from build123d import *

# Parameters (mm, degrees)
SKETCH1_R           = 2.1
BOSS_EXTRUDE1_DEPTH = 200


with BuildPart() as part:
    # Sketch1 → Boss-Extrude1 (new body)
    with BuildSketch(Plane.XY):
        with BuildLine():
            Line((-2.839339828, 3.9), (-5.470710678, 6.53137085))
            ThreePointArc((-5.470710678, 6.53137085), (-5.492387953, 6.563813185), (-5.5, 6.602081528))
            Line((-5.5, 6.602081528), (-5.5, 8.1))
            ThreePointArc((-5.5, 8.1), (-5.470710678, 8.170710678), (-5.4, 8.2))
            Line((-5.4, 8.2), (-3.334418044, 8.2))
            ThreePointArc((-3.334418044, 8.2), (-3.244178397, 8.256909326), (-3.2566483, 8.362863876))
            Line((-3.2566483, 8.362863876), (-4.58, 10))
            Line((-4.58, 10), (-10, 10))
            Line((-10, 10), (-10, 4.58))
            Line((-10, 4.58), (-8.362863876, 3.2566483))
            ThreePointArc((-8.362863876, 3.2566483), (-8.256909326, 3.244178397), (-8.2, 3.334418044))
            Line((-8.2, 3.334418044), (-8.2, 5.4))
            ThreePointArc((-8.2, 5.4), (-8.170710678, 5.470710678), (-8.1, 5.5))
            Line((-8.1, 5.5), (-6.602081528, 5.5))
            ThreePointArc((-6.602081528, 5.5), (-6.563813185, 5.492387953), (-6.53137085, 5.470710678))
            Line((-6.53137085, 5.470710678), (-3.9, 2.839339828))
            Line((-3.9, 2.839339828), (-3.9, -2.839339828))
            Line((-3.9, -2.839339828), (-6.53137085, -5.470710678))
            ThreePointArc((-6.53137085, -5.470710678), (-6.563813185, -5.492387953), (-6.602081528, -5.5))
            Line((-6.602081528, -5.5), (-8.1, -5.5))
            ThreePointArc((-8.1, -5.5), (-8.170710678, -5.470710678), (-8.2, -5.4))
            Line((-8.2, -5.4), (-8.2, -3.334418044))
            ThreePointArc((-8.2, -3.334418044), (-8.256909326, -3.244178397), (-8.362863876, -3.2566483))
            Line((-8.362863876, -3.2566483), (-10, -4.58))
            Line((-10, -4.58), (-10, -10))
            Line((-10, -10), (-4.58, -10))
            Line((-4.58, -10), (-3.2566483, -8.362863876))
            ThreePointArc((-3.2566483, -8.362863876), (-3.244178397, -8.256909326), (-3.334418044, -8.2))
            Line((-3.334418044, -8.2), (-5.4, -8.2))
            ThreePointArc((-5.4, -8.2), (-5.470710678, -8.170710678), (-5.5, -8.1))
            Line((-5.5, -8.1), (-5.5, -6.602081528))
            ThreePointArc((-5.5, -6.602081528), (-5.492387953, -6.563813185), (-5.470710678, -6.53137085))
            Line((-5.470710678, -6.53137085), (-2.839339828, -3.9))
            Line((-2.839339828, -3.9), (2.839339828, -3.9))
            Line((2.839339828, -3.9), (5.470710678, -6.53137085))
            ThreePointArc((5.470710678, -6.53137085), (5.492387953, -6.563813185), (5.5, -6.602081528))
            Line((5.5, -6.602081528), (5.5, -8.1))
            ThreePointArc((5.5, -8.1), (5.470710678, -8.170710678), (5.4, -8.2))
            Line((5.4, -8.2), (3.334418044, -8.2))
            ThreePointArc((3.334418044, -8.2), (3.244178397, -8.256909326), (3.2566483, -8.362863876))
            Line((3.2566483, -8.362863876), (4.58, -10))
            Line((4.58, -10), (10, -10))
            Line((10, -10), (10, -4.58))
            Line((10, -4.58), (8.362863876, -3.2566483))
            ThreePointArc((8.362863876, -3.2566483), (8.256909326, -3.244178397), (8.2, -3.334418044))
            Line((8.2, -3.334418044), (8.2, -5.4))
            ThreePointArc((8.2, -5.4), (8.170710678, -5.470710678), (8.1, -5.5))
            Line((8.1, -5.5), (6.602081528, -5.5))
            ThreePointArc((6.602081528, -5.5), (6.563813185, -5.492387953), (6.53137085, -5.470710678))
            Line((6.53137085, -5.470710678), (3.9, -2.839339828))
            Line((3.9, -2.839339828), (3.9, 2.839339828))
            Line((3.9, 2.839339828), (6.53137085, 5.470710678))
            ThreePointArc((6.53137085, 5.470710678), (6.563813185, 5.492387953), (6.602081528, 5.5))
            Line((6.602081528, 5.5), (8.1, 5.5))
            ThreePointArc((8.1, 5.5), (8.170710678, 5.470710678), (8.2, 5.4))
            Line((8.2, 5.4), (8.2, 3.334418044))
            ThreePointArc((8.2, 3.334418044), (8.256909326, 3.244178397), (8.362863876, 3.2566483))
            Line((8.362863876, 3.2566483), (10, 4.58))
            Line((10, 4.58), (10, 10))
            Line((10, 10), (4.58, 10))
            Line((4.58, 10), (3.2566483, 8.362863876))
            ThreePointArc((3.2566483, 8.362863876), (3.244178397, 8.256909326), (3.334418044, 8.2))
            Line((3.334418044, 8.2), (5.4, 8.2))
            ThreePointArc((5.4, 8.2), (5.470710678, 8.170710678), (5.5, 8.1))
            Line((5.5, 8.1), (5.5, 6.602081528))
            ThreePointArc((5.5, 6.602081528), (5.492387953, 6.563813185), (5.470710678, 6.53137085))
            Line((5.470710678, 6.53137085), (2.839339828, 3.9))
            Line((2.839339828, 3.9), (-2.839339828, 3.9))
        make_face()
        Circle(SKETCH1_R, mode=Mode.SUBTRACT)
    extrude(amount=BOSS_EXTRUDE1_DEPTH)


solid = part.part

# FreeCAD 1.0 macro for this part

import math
import FreeCAD as App
import Part
import Sketcher
from FreeCAD import Vector

doc = App.newDocument("Part")
body = doc.addObject("PartDesign::Body", "Body")

sketch1 = doc.addObject("Sketcher::SketchObject", "Sketch")
body.addObject(sketch1)
sketch1.AttachmentSupport = (doc.XY_Plane, [""])
sketch1.MapMode = "FlatFace"
sketch1.addGeometry(Part.LineSegment(Vector(-2.83934, 3.9, 0), Vector(-5.470711, 6.531371, 0)), False)
sketch1.addGeometry(Part.ArcOfCircle(Part.Circle(Vector(-5.4, 6.602082, 0), Vector(0, 0, 1), 0.1), math.radians(-179.999999), math.radians(-135.000001)), False)
sketch1.addGeometry(Part.LineSegment(Vector(-5.5, 6.602082, 0), Vector(-5.5, 8.1, 0)), False)
sketch1.addGeometry(Part.ArcOfCircle(Part.Circle(Vector(-5.4, 8.1, 0), Vector(0, 0, 1), 0.1), math.radians(90), math.radians(180)), False)
sketch1.addGeometry(Part.LineSegment(Vector(-5.4, 8.2, 0), Vector(-3.334418, 8.2, 0)), False)
sketch1.addGeometry(Part.ArcOfCircle(Part.Circle(Vector(-3.334418, 8.3, 0), Vector(0, 0, 1), 0.1), math.radians(-90.000001), math.radians(38.949764)), False)
sketch1.addGeometry(Part.LineSegment(Vector(-3.256648, 8.362864, 0), Vector(-4.58, 10, 0)), False)
sketch1.addGeometry(Part.LineSegment(Vector(-4.58, 10, 0), Vector(-10, 10, 0)), False)
sketch1.addGeometry(Part.LineSegment(Vector(-10, 10, 0), Vector(-10, 4.58, 0)), False)
sketch1.addGeometry(Part.LineSegment(Vector(-10, 4.58, 0), Vector(-8.362864, 3.256648, 0)), False)
sketch1.addGeometry(Part.ArcOfCircle(Part.Circle(Vector(-8.3, 3.334418, 0), Vector(0, 0, 1), 0.1), math.radians(-128.949764), math.radians(0.000001)), False)
sketch1.addGeometry(Part.LineSegment(Vector(-8.2, 3.334418, 0), Vector(-8.2, 5.4, 0)), False)
sketch1.addGeometry(Part.ArcOfCircle(Part.Circle(Vector(-8.1, 5.4, 0), Vector(0, 0, 1), 0.1), math.radians(90), math.radians(180)), False)
sketch1.addGeometry(Part.LineSegment(Vector(-8.1, 5.5, 0), Vector(-6.602082, 5.5, 0)), False)
sketch1.addGeometry(Part.ArcOfCircle(Part.Circle(Vector(-6.602082, 5.4, 0), Vector(0, 0, 1), 0.1), math.radians(45.000001), math.radians(89.999999)), False)
sketch1.addGeometry(Part.LineSegment(Vector(-6.531371, 5.470711, 0), Vector(-3.9, 2.83934, 0)), False)
sketch1.addGeometry(Part.LineSegment(Vector(-3.9, 2.83934, 0), Vector(-3.9, -2.83934, 0)), False)
sketch1.addGeometry(Part.LineSegment(Vector(-3.9, -2.83934, 0), Vector(-6.531371, -5.470711, 0)), False)
sketch1.addGeometry(Part.ArcOfCircle(Part.Circle(Vector(-6.602082, -5.4, 0), Vector(0, 0, 1), 0.1), math.radians(-89.999999), math.radians(-45.000001)), False)
sketch1.addGeometry(Part.LineSegment(Vector(-6.602082, -5.5, 0), Vector(-8.1, -5.5, 0)), False)
sketch1.addGeometry(Part.ArcOfCircle(Part.Circle(Vector(-8.1, -5.4, 0), Vector(0, 0, 1), 0.1), math.radians(180), math.radians(270)), False)
sketch1.addGeometry(Part.LineSegment(Vector(-8.2, -5.4, 0), Vector(-8.2, -3.334418, 0)), False)
sketch1.addGeometry(Part.ArcOfCircle(Part.Circle(Vector(-8.3, -3.334418, 0), Vector(0, 0, 1), 0.1), math.radians(-0.000001), math.radians(128.949764)), False)
sketch1.addGeometry(Part.LineSegment(Vector(-8.362864, -3.256648, 0), Vector(-10, -4.58, 0)), False)
sketch1.addGeometry(Part.LineSegment(Vector(-10, -4.58, 0), Vector(-10, -10, 0)), False)
sketch1.addGeometry(Part.LineSegment(Vector(-10, -10, 0), Vector(-4.58, -10, 0)), False)
sketch1.addGeometry(Part.LineSegment(Vector(-4.58, -10, 0), Vector(-3.256648, -8.362864, 0)), False)
sketch1.addGeometry(Part.ArcOfCircle(Part.Circle(Vector(-3.334418, -8.3, 0), Vector(0, 0, 1), 0.1), math.radians(-38.949764), math.radians(90.000001)), False)
sketch1.addGeometry(Part.LineSegment(Vector(-3.334418, -8.2, 0), Vector(-5.4, -8.2, 0)), False)
sketch1.addGeometry(Part.ArcOfCircle(Part.Circle(Vector(-5.4, -8.1, 0), Vector(0, 0, 1), 0.1), math.radians(180), math.radians(270)), False)
sketch1.addGeometry(Part.LineSegment(Vector(-5.5, -8.1, 0), Vector(-5.5, -6.602082, 0)), False)
sketch1.addGeometry(Part.ArcOfCircle(Part.Circle(Vector(-5.4, -6.602082, 0), Vector(0, 0, 1), 0.1), math.radians(135.000001), math.radians(179.999999)), False)
sketch1.addGeometry(Part.LineSegment(Vector(-5.470711, -6.531371, 0), Vector(-2.83934, -3.9, 0)), False)
sketch1.addGeometry(Part.LineSegment(Vector(-2.83934, -3.9, 0), Vector(2.83934, -3.9, 0)), False)
sketch1.addGeometry(Part.LineSegment(Vector(2.83934, -3.9, 0), Vector(5.470711, -6.531371, 0)), False)
sketch1.addGeometry(Part.ArcOfCircle(Part.Circle(Vector(5.4, -6.602082, 0), Vector(0, 0, 1), 0.1), math.radians(0.000001), math.radians(44.999999)), False)
sketch1.addGeometry(Part.LineSegment(Vector(5.5, -6.602082, 0), Vector(5.5, -8.1, 0)), False)
sketch1.addGeometry(Part.ArcOfCircle(Part.Circle(Vector(5.4, -8.1, 0), Vector(0, 0, 1), 0.1), math.radians(-90), math.radians(0)), False)
sketch1.addGeometry(Part.LineSegment(Vector(5.4, -8.2, 0), Vector(3.334418, -8.2, 0)), False)
sketch1.addGeometry(Part.ArcOfCircle(Part.Circle(Vector(3.334418, -8.3, 0), Vector(0, 0, 1), 0.1), math.radians(89.999999), math.radians(218.949764)), False)
sketch1.addGeometry(Part.LineSegment(Vector(3.256648, -8.362864, 0), Vector(4.58, -10, 0)), False)
sketch1.addGeometry(Part.LineSegment(Vector(4.58, -10, 0), Vector(10, -10, 0)), False)
sketch1.addGeometry(Part.LineSegment(Vector(10, -10, 0), Vector(10, -4.58, 0)), False)
sketch1.addGeometry(Part.LineSegment(Vector(10, -4.58, 0), Vector(8.362864, -3.256648, 0)), False)
sketch1.addGeometry(Part.ArcOfCircle(Part.Circle(Vector(8.3, -3.334418, 0), Vector(0, 0, 1), 0.1), math.radians(51.050236), math.radians(180.000001)), False)
sketch1.addGeometry(Part.LineSegment(Vector(8.2, -3.334418, 0), Vector(8.2, -5.4, 0)), False)
sketch1.addGeometry(Part.ArcOfCircle(Part.Circle(Vector(8.1, -5.4, 0), Vector(0, 0, 1), 0.1), math.radians(-90), math.radians(0)), False)
sketch1.addGeometry(Part.LineSegment(Vector(8.1, -5.5, 0), Vector(6.602082, -5.5, 0)), False)
sketch1.addGeometry(Part.ArcOfCircle(Part.Circle(Vector(6.602082, -5.4, 0), Vector(0, 0, 1), 0.1), math.radians(-134.999999), math.radians(-90.000001)), False)
sketch1.addGeometry(Part.LineSegment(Vector(6.531371, -5.470711, 0), Vector(3.9, -2.83934, 0)), False)
sketch1.addGeometry(Part.LineSegment(Vector(3.9, -2.83934, 0), Vector(3.9, 2.83934, 0)), False)
sketch1.addGeometry(Part.LineSegment(Vector(3.9, 2.83934, 0), Vector(6.531371, 5.470711, 0)), False)
sketch1.addGeometry(Part.ArcOfCircle(Part.Circle(Vector(6.602082, 5.4, 0), Vector(0, 0, 1), 0.1), math.radians(90.000001), math.radians(134.999999)), False)
sketch1.addGeometry(Part.LineSegment(Vector(6.602082, 5.5, 0), Vector(8.1, 5.5, 0)), False)
sketch1.addGeometry(Part.ArcOfCircle(Part.Circle(Vector(8.1, 5.4, 0), Vector(0, 0, 1), 0.1), math.radians(0), math.radians(90)), False)
sketch1.addGeometry(Part.LineSegment(Vector(8.2, 5.4, 0), Vector(8.2, 3.334418, 0)), False)
sketch1.addGeometry(Part.ArcOfCircle(Part.Circle(Vector(8.3, 3.334418, 0), Vector(0, 0, 1), 0.1), math.radians(179.999999), math.radians(308.949764)), False)
sketch1.addGeometry(Part.LineSegment(Vector(8.362864, 3.256648, 0), Vector(10, 4.58, 0)), False)
sketch1.addGeometry(Part.LineSegment(Vector(10, 4.58, 0), Vector(10, 10, 0)), False)
sketch1.addGeometry(Part.LineSegment(Vector(10, 10, 0), Vector(4.58, 10, 0)), False)
sketch1.addGeometry(Part.LineSegment(Vector(4.58, 10, 0), Vector(3.256648, 8.362864, 0)), False)
sketch1.addGeometry(Part.ArcOfCircle(Part.Circle(Vector(3.334418, 8.3, 0), Vector(0, 0, 1), 0.1), math.radians(141.050236), math.radians(270.000001)), False)
sketch1.addGeometry(Part.LineSegment(Vector(3.334418, 8.2, 0), Vector(5.4, 8.2, 0)), False)
sketch1.addGeometry(Part.ArcOfCircle(Part.Circle(Vector(5.4, 8.1, 0), Vector(0, 0, 1), 0.1), math.radians(0), math.radians(90)), False)
sketch1.addGeometry(Part.LineSegment(Vector(5.5, 8.1, 0), Vector(5.5, 6.602082, 0)), False)
sketch1.addGeometry(Part.ArcOfCircle(Part.Circle(Vector(5.4, 6.602082, 0), Vector(0, 0, 1), 0.1), math.radians(-44.999999), math.radians(-0.000001)), False)
sketch1.addGeometry(Part.LineSegment(Vector(5.470711, 6.531371, 0), Vector(2.83934, 3.9, 0)), False)
sketch1.addGeometry(Part.LineSegment(Vector(2.83934, 3.9, 0), Vector(-2.83934, 3.9, 0)), False)
sketch1.addGeometry(Part.Circle(Vector(0, 0, 0), Vector(0, 0, 1), 2.1), False)
sketch1.addConstraint(Sketcher.Constraint("Tangent", 0, 2, 1, 2))
sketch1.addConstraint(Sketcher.Constraint("Tangent", 1, 1, 2, 1))
sketch1.addConstraint(Sketcher.Constraint("Tangent", 2, 2, 3, 2))
sketch1.addConstraint(Sketcher.Constraint("Tangent", 3, 1, 4, 1))
sketch1.addConstraint(Sketcher.Constraint("Tangent", 4, 2, 5, 1))
sketch1.addConstraint(Sketcher.Constraint("Tangent", 5, 2, 6, 1))
sketch1.addConstraint(Sketcher.Constraint("Coincident", 6, 2, 7, 1))
sketch1.addConstraint(Sketcher.Constraint("Coincident", 7, 2, 8, 1))
sketch1.addConstraint(Sketcher.Constraint("Coincident", 8, 2, 9, 1))
sketch1.addConstraint(Sketcher.Constraint("Tangent", 9, 2, 10, 1))
sketch1.addConstraint(Sketcher.Constraint("Tangent", 10, 2, 11, 1))
sketch1.addConstraint(Sketcher.Constraint("Tangent", 11, 2, 12, 2))
sketch1.addConstraint(Sketcher.Constraint("Tangent", 12, 1, 13, 1))
sketch1.addConstraint(Sketcher.Constraint("Tangent", 13, 2, 14, 2))
sketch1.addConstraint(Sketcher.Constraint("Tangent", 14, 1, 15, 1))
sketch1.addConstraint(Sketcher.Constraint("Coincident", 15, 2, 16, 1))
sketch1.addConstraint(Sketcher.Constraint("Coincident", 16, 2, 17, 1))
sketch1.addConstraint(Sketcher.Constraint("Tangent", 17, 2, 18, 2))
sketch1.addConstraint(Sketcher.Constraint("Tangent", 18, 1, 19, 1))
sketch1.addConstraint(Sketcher.Constraint("Tangent", 19, 2, 20, 2))
sketch1.addConstraint(Sketcher.Constraint("Tangent", 20, 1, 21, 1))
sketch1.addConstraint(Sketcher.Constraint("Tangent", 21, 2, 22, 1))
sketch1.addConstraint(Sketcher.Constraint("Tangent", 22, 2, 23, 1))
sketch1.addConstraint(Sketcher.Constraint("Coincident", 23, 2, 24, 1))
sketch1.addConstraint(Sketcher.Constraint("Coincident", 24, 2, 25, 1))
sketch1.addConstraint(Sketcher.Constraint("Coincident", 25, 2, 26, 1))
sketch1.addConstraint(Sketcher.Constraint("Tangent", 26, 2, 27, 1))
sketch1.addConstraint(Sketcher.Constraint("Tangent", 27, 2, 28, 1))
sketch1.addConstraint(Sketcher.Constraint("Tangent", 28, 2, 29, 2))
sketch1.addConstraint(Sketcher.Constraint("Tangent", 29, 1, 30, 1))
sketch1.addConstraint(Sketcher.Constraint("Tangent", 30, 2, 31, 2))
sketch1.addConstraint(Sketcher.Constraint("Tangent", 31, 1, 32, 1))
sketch1.addConstraint(Sketcher.Constraint("Coincident", 32, 2, 33, 1))
sketch1.addConstraint(Sketcher.Constraint("Coincident", 33, 2, 34, 1))
sketch1.addConstraint(Sketcher.Constraint("Tangent", 34, 2, 35, 2))
sketch1.addConstraint(Sketcher.Constraint("Tangent", 35, 1, 36, 1))
sketch1.addConstraint(Sketcher.Constraint("Tangent", 36, 2, 37, 2))
sketch1.addConstraint(Sketcher.Constraint("Tangent", 37, 1, 38, 1))
sketch1.addConstraint(Sketcher.Constraint("Tangent", 38, 2, 39, 1))
sketch1.addConstraint(Sketcher.Constraint("Tangent", 39, 2, 40, 1))
sketch1.addConstraint(Sketcher.Constraint("Coincident", 40, 2, 41, 1))
sketch1.addConstraint(Sketcher.Constraint("Coincident", 41, 2, 42, 1))
sketch1.addConstraint(Sketcher.Constraint("Coincident", 42, 2, 43, 1))
sketch1.addConstraint(Sketcher.Constraint("Tangent", 43, 2, 44, 1))
sketch1.addConstraint(Sketcher.Constraint("Tangent", 44, 2, 45, 1))
sketch1.addConstraint(Sketcher.Constraint("Tangent", 45, 2, 46, 2))
sketch1.addConstraint(Sketcher.Constraint("Tangent", 46, 1, 47, 1))
sketch1.addConstraint(Sketcher.Constraint("Tangent", 47, 2, 48, 2))
sketch1.addConstraint(Sketcher.Constraint("Tangent", 48, 1, 49, 1))
sketch1.addConstraint(Sketcher.Constraint("Coincident", 49, 2, 50, 1))
sketch1.addConstraint(Sketcher.Constraint("Coincident", 50, 2, 51, 1))
sketch1.addConstraint(Sketcher.Constraint("Tangent", 51, 2, 52, 2))
sketch1.addConstraint(Sketcher.Constraint("Tangent", 52, 1, 53, 1))
sketch1.addConstraint(Sketcher.Constraint("Tangent", 53, 2, 54, 2))
sketch1.addConstraint(Sketcher.Constraint("Tangent", 54, 1, 55, 1))
sketch1.addConstraint(Sketcher.Constraint("Tangent", 55, 2, 56, 1))
sketch1.addConstraint(Sketcher.Constraint("Tangent", 56, 2, 57, 1))
sketch1.addConstraint(Sketcher.Constraint("Coincident", 57, 2, 58, 1))
sketch1.addConstraint(Sketcher.Constraint("Coincident", 58, 2, 59, 1))
sketch1.addConstraint(Sketcher.Constraint("Coincident", 59, 2, 60, 1))
sketch1.addConstraint(Sketcher.Constraint("Tangent", 60, 2, 61, 1))
sketch1.addConstraint(Sketcher.Constraint("Tangent", 61, 2, 62, 1))
sketch1.addConstraint(Sketcher.Constraint("Tangent", 62, 2, 63, 2))
sketch1.addConstraint(Sketcher.Constraint("Tangent", 63, 1, 64, 1))
sketch1.addConstraint(Sketcher.Constraint("Tangent", 64, 2, 65, 2))
sketch1.addConstraint(Sketcher.Constraint("Tangent", 65, 1, 66, 1))
sketch1.addConstraint(Sketcher.Constraint("Coincident", 66, 2, 67, 1))
sketch1.addConstraint(Sketcher.Constraint("Coincident", 67, 2, 0, 1))
sketch1.addConstraint(Sketcher.Constraint("Vertical", 2))
sketch1.addConstraint(Sketcher.Constraint("Horizontal", 4))
sketch1.addConstraint(Sketcher.Constraint("Horizontal", 7))
sketch1.addConstraint(Sketcher.Constraint("Vertical", 8))
sketch1.addConstraint(Sketcher.Constraint("Vertical", 11))
sketch1.addConstraint(Sketcher.Constraint("Horizontal", 13))
sketch1.addConstraint(Sketcher.Constraint("Vertical", 16))
sketch1.addConstraint(Sketcher.Constraint("Horizontal", 19))
sketch1.addConstraint(Sketcher.Constraint("Vertical", 21))
sketch1.addConstraint(Sketcher.Constraint("Vertical", 24))
sketch1.addConstraint(Sketcher.Constraint("Horizontal", 25))
sketch1.addConstraint(Sketcher.Constraint("Horizontal", 28))
sketch1.addConstraint(Sketcher.Constraint("Vertical", 30))
sketch1.addConstraint(Sketcher.Constraint("Horizontal", 33))
sketch1.addConstraint(Sketcher.Constraint("Vertical", 36))
sketch1.addConstraint(Sketcher.Constraint("Horizontal", 38))
sketch1.addConstraint(Sketcher.Constraint("Horizontal", 41))
sketch1.addConstraint(Sketcher.Constraint("Vertical", 42))
sketch1.addConstraint(Sketcher.Constraint("Vertical", 45))
sketch1.addConstraint(Sketcher.Constraint("Horizontal", 47))
sketch1.addConstraint(Sketcher.Constraint("Vertical", 50))
sketch1.addConstraint(Sketcher.Constraint("Horizontal", 53))
sketch1.addConstraint(Sketcher.Constraint("Vertical", 55))
sketch1.addConstraint(Sketcher.Constraint("Vertical", 58))
sketch1.addConstraint(Sketcher.Constraint("Horizontal", 59))
sketch1.addConstraint(Sketcher.Constraint("Horizontal", 62))
sketch1.addConstraint(Sketcher.Constraint("Vertical", 64))
sketch1.addConstraint(Sketcher.Constraint("Horizontal", 67))
sketch1.addConstraint(Sketcher.Constraint("Coincident", 68, 3, -1, 1))
sketch1.addConstraint(Sketcher.Constraint("Equal", 1, 3))
sketch1.addConstraint(Sketcher.Constraint("Equal", 3, 5))
sketch1.addConstraint(Sketcher.Constraint("Equal", 5, 10))
sketch1.addConstraint(Sketcher.Constraint("Equal", 10, 12))
sketch1.addConstraint(Sketcher.Constraint("Equal", 12, 14))
sketch1.addConstraint(Sketcher.Constraint("Equal", 14, 18))
sketch1.addConstraint(Sketcher.Constraint("Equal", 18, 20))
sketch1.addConstraint(Sketcher.Constraint("Equal", 20, 22))
sketch1.addConstraint(Sketcher.Constraint("Equal", 22, 27))
sketch1.addConstraint(Sketcher.Constraint("Equal", 27, 29))
sketch1.addConstraint(Sketcher.Constraint("Equal", 29, 31))
sketch1.addConstraint(Sketcher.Constraint("Equal", 31, 35))
sketch1.addConstraint(Sketcher.Constraint("Equal", 35, 37))
sketch1.addConstraint(Sketcher.Constraint("Equal", 37, 39))
sketch1.addConstraint(Sketcher.Constraint("Equal", 39, 44))
sketch1.addConstraint(Sketcher.Constraint("Equal", 44, 46))
sketch1.addConstraint(Sketcher.Constraint("Equal", 46, 48))
sketch1.addConstraint(Sketcher.Constraint("Equal", 48, 52))
sketch1.addConstraint(Sketcher.Constraint("Equal", 52, 54))
sketch1.addConstraint(Sketcher.Constraint("Equal", 54, 56))
sketch1.addConstraint(Sketcher.Constraint("Equal", 56, 61))
sketch1.addConstraint(Sketcher.Constraint("Equal", 61, 63))
sketch1.addConstraint(Sketcher.Constraint("Equal", 63, 65))
sketch1.addConstraint(Sketcher.Constraint("Symmetric", 1, 3, 35, 3, -1, 1))
sketch1.addConstraint(Sketcher.Constraint("Symmetric", 5, 3, 39, 3, -1, 1))
sketch1.addConstraint(Sketcher.Constraint("Symmetric", 10, 3, 44, 3, -1, 1))
sketch1.addConstraint(Sketcher.Constraint("Symmetric", 14, 3, 48, 3, -1, 1))
sketch1.addConstraint(Sketcher.Constraint("Symmetric", 18, 3, 52, 3, -1, 1))
sketch1.addConstraint(Sketcher.Constraint("Symmetric", 22, 3, 56, 3, -1, 1))
sketch1.addConstraint(Sketcher.Constraint("Symmetric", 27, 3, 61, 3, -1, 1))
sketch1.addConstraint(Sketcher.Constraint("Symmetric", 31, 3, 65, 3, -1, 1))
sketch1.addConstraint(Sketcher.Constraint("Symmetric", 6, 2, 40, 2, -1, 1))
sketch1.addConstraint(Sketcher.Constraint("Symmetric", 8, 2, 42, 2, -1, 1))
sketch1.addConstraint(Sketcher.Constraint("Symmetric", 15, 2, 49, 2, -1, 1))
sketch1.addConstraint(Sketcher.Constraint("Symmetric", 23, 2, 57, 2, -1, 1))
sketch1.addConstraint(Sketcher.Constraint("Symmetric", 25, 2, 59, 2, -1, 1))
sketch1.addConstraint(Sketcher.Constraint("Symmetric", 32, 2, 66, 2, -1, 1))
sketch1.addConstraint(Sketcher.Constraint("Symmetric", 31, 3, 35, 3, -2))
sketch1.addConstraint(Sketcher.Constraint("Symmetric", 27, 3, 39, 3, -2))
sketch1.addConstraint(Sketcher.Constraint("Symmetric", 22, 3, 44, 3, -2))
sketch1.addConstraint(Sketcher.Constraint("Symmetric", 18, 3, 48, 3, -2))
sketch1.addConstraint(Sketcher.Constraint("Symmetric", 25, 2, 40, 2, -2))
sketch1.addConstraint(Sketcher.Constraint("Symmetric", 23, 2, 42, 2, -2))
sketch1.addConstraint(Sketcher.Constraint("Parallel", 0, 15))
sketch1.addConstraint(Sketcher.Constraint("Perpendicular", 15, 17))
sketch1.addConstraint(Sketcher.Constraint("Perpendicular", 6, 23))
sketch1.addConstraint(Sketcher.Constraint("Parallel", 17, 32))
sketch1.addConstraint(Sketcher.Constraint("Perpendicular", 32, 34))
sketch1.addConstraint(Sketcher.Constraint("Perpendicular", 49, 51))
sketch1.addConstraint(Sketcher.Constraint("Horizontal", 31, 1, 34, 2))
sketch1.addConstraint(Sketcher.Constraint("Equal", 53, 2))
sketch1.addConstraint(Sketcher.Constraint("Equal", 59, 8))
sketch1.addConstraint(Sketcher.Constraint("Equal", 62, 11))
sketch1.addConstraint(Sketcher.Constraint("Equal", 67, 16))
sketch1.addConstraint(Sketcher.Constraint("Equal", 6, 9))
sketch1.addConstraint(Sketcher.Constraint("Equal", 0, 15))
sketch1.addConstraint(Sketcher.Constraint("Diameter", 68, 4.2))
sketch1.addConstraint(Sketcher.Constraint("Radius", 1, 0.1))
sketch1.addConstraint(Sketcher.Constraint("DistanceY", -1, 1, 6, 2, 10.0))
sketch1.addConstraint(Sketcher.Constraint("DistanceX", 7, 2, 7, 1, 5.42))
sketch1.addConstraint(Sketcher.Constraint("DistanceX", 1, 3, -1, 1, 5.4))
sketch1.addConstraint(Sketcher.Constraint("DistanceY", -1, 1, 3, 3, 8.1))
sketch1.addConstraint(Sketcher.Constraint("DistanceX", 15, 2, -1, 1, 3.9))
sketch1.addConstraint(Sketcher.Constraint("DistanceX", 4, 1, 4, 2, 2.065582))
sketch1.addConstraint(Sketcher.Constraint("DistanceX", 13, 1, 13, 2, 1.497918))
pad1 = doc.addObject("PartDesign::Pad", "Pad")
body.addObject(pad1)
pad1.Profile = sketch1
pad1.Length = 200

doc.recompute()
